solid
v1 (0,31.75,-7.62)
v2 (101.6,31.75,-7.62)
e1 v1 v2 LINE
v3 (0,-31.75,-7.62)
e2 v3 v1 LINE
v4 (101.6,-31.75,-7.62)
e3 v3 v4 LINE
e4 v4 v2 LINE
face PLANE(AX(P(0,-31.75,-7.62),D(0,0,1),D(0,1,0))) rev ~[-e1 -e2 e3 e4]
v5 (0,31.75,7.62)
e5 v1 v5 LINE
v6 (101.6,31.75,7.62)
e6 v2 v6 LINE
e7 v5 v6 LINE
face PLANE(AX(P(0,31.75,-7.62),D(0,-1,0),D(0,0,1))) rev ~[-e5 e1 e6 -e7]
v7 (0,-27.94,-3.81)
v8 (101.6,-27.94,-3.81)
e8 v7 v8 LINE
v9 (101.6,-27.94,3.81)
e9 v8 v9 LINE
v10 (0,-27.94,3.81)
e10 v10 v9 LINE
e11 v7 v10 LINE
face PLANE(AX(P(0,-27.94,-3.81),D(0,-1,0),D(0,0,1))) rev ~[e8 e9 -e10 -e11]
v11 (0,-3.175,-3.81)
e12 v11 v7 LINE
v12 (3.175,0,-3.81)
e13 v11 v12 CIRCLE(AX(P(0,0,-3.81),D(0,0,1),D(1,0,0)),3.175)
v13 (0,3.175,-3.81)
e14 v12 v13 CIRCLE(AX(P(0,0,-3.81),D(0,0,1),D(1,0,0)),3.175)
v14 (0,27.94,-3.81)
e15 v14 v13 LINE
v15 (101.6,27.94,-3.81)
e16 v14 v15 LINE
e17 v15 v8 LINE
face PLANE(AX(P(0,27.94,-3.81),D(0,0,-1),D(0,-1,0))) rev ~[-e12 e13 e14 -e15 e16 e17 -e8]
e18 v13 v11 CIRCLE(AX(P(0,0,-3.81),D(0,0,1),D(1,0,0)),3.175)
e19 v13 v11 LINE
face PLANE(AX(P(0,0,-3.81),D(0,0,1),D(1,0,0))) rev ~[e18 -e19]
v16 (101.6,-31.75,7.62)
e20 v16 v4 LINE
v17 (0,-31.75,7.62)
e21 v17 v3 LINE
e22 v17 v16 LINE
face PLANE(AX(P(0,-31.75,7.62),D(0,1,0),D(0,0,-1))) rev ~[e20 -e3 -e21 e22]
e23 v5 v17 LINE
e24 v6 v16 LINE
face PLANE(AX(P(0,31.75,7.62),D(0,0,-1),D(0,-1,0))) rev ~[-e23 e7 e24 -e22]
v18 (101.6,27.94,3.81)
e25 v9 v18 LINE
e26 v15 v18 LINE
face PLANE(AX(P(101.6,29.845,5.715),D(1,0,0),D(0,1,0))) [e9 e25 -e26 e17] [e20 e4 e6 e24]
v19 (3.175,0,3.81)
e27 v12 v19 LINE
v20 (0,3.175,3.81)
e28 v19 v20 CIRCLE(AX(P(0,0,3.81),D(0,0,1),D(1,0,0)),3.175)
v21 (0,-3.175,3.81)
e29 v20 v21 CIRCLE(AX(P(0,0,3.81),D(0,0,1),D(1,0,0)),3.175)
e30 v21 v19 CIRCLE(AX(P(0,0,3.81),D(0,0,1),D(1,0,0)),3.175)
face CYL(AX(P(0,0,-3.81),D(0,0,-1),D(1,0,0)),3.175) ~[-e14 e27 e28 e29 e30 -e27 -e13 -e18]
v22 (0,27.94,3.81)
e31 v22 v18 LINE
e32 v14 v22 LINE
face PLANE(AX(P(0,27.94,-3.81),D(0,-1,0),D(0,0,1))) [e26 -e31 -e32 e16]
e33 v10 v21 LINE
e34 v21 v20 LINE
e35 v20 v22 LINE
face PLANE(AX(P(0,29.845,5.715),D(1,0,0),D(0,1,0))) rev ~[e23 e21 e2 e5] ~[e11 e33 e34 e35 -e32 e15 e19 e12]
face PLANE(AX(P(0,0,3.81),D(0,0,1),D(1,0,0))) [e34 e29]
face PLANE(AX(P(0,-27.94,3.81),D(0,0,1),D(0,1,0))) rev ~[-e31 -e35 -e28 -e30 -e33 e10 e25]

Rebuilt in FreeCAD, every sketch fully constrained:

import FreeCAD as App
import Part
import Sketcher

V = App.Vector
Q = App.Units.Quantity


def add_polygon(sketch, points):
    """Adds a closed chain of lines whose ends are joined by coincident constraints."""
    first, n = sketch.GeometryCount, len(points)
    for a, b in zip(points, points[1:] + points[:1]):
        sketch.addGeometry(Part.LineSegment(App.Vector(*a, 0), App.Vector(*b, 0)), False)
    for i in range(n):
        sketch.addConstraint(Sketcher.Constraint("Coincident", first + i, 2, first + (i + 1) % n, 1))

doc = App.newDocument("Part")
body = doc.addObject("PartDesign::Body", "Body")

# Sketch on YZ plane
sketch1 = body.newObject("Sketcher::SketchObject", "Sketch")
sketch1.AttachmentSupport = (doc.getObject("YZ_Plane"), [""])
sketch1.MapMode = "FlatFace"
add_polygon(sketch1, [(32, 8), (-32, 8), (-32, -8), (32, -8)])  # lines 0-3
add_polygon(sketch1, [(-28, 4), (28, 4), (28, -4), (-28, -4)])  # lines 4-7
sketch1.addConstraint([
    Sketcher.Constraint("Horizontal", 0),
    Sketcher.Constraint("Vertical", 1),
    Sketcher.Constraint("Horizontal", 2),
    Sketcher.Constraint("Vertical", 3),
    Sketcher.Constraint("Horizontal", 4),
    Sketcher.Constraint("Vertical", 5),
    Sketcher.Constraint("Horizontal", 6),
    Sketcher.Constraint("Vertical", 7),
    Sketcher.Constraint("Symmetric", 0, 2, 2, 2, -1, 1),
    Sketcher.Constraint("Symmetric", 4, 2, 6, 2, -1, 1),
    Sketcher.Constraint("DistanceX", 0, 2, 0, 1, Q("2.5 in")),
    Sketcher.Constraint("DistanceX", 4, 1, 4, 2, Q("2.2 in")),
    Sketcher.Constraint("DistanceY", 1, 2, 1, 1, Q("0.6 in")),
    Sketcher.Constraint("DistanceY", 5, 2, 5, 1, Q("0.3 in")),
])
pad1 = body.newObject("PartDesign::Pad", "Pad")
pad1.Profile = sketch1
pad1.Length = Q("4 in")

# Sketch on XY plane
sketch2 = body.newObject("Sketcher::SketchObject", "Sketch001")
sketch2.AttachmentSupport = (doc.getObject("XY_Plane"), [""])
sketch2.MapMode = "FlatFace"
sketch2.AttachmentOffset = App.Placement(V(0, 0, -0.15 * 25.4), App.Rotation())
sketch2.addGeometry(Part.Circle(V(0, 0, 0), V(0, 0, 1), 3.2), False)
sketch2.addConstraint([
    Sketcher.Constraint("Coincident", 0, 3, -1, 1),
    Sketcher.Constraint("Diameter", 0, Q("0.25 in")),
])
pad2 = body.newObject("PartDesign::Pad", "Pad001")
pad2.Profile = sketch2
pad2.Length = Q("0.3 in")

doc.recompute()
